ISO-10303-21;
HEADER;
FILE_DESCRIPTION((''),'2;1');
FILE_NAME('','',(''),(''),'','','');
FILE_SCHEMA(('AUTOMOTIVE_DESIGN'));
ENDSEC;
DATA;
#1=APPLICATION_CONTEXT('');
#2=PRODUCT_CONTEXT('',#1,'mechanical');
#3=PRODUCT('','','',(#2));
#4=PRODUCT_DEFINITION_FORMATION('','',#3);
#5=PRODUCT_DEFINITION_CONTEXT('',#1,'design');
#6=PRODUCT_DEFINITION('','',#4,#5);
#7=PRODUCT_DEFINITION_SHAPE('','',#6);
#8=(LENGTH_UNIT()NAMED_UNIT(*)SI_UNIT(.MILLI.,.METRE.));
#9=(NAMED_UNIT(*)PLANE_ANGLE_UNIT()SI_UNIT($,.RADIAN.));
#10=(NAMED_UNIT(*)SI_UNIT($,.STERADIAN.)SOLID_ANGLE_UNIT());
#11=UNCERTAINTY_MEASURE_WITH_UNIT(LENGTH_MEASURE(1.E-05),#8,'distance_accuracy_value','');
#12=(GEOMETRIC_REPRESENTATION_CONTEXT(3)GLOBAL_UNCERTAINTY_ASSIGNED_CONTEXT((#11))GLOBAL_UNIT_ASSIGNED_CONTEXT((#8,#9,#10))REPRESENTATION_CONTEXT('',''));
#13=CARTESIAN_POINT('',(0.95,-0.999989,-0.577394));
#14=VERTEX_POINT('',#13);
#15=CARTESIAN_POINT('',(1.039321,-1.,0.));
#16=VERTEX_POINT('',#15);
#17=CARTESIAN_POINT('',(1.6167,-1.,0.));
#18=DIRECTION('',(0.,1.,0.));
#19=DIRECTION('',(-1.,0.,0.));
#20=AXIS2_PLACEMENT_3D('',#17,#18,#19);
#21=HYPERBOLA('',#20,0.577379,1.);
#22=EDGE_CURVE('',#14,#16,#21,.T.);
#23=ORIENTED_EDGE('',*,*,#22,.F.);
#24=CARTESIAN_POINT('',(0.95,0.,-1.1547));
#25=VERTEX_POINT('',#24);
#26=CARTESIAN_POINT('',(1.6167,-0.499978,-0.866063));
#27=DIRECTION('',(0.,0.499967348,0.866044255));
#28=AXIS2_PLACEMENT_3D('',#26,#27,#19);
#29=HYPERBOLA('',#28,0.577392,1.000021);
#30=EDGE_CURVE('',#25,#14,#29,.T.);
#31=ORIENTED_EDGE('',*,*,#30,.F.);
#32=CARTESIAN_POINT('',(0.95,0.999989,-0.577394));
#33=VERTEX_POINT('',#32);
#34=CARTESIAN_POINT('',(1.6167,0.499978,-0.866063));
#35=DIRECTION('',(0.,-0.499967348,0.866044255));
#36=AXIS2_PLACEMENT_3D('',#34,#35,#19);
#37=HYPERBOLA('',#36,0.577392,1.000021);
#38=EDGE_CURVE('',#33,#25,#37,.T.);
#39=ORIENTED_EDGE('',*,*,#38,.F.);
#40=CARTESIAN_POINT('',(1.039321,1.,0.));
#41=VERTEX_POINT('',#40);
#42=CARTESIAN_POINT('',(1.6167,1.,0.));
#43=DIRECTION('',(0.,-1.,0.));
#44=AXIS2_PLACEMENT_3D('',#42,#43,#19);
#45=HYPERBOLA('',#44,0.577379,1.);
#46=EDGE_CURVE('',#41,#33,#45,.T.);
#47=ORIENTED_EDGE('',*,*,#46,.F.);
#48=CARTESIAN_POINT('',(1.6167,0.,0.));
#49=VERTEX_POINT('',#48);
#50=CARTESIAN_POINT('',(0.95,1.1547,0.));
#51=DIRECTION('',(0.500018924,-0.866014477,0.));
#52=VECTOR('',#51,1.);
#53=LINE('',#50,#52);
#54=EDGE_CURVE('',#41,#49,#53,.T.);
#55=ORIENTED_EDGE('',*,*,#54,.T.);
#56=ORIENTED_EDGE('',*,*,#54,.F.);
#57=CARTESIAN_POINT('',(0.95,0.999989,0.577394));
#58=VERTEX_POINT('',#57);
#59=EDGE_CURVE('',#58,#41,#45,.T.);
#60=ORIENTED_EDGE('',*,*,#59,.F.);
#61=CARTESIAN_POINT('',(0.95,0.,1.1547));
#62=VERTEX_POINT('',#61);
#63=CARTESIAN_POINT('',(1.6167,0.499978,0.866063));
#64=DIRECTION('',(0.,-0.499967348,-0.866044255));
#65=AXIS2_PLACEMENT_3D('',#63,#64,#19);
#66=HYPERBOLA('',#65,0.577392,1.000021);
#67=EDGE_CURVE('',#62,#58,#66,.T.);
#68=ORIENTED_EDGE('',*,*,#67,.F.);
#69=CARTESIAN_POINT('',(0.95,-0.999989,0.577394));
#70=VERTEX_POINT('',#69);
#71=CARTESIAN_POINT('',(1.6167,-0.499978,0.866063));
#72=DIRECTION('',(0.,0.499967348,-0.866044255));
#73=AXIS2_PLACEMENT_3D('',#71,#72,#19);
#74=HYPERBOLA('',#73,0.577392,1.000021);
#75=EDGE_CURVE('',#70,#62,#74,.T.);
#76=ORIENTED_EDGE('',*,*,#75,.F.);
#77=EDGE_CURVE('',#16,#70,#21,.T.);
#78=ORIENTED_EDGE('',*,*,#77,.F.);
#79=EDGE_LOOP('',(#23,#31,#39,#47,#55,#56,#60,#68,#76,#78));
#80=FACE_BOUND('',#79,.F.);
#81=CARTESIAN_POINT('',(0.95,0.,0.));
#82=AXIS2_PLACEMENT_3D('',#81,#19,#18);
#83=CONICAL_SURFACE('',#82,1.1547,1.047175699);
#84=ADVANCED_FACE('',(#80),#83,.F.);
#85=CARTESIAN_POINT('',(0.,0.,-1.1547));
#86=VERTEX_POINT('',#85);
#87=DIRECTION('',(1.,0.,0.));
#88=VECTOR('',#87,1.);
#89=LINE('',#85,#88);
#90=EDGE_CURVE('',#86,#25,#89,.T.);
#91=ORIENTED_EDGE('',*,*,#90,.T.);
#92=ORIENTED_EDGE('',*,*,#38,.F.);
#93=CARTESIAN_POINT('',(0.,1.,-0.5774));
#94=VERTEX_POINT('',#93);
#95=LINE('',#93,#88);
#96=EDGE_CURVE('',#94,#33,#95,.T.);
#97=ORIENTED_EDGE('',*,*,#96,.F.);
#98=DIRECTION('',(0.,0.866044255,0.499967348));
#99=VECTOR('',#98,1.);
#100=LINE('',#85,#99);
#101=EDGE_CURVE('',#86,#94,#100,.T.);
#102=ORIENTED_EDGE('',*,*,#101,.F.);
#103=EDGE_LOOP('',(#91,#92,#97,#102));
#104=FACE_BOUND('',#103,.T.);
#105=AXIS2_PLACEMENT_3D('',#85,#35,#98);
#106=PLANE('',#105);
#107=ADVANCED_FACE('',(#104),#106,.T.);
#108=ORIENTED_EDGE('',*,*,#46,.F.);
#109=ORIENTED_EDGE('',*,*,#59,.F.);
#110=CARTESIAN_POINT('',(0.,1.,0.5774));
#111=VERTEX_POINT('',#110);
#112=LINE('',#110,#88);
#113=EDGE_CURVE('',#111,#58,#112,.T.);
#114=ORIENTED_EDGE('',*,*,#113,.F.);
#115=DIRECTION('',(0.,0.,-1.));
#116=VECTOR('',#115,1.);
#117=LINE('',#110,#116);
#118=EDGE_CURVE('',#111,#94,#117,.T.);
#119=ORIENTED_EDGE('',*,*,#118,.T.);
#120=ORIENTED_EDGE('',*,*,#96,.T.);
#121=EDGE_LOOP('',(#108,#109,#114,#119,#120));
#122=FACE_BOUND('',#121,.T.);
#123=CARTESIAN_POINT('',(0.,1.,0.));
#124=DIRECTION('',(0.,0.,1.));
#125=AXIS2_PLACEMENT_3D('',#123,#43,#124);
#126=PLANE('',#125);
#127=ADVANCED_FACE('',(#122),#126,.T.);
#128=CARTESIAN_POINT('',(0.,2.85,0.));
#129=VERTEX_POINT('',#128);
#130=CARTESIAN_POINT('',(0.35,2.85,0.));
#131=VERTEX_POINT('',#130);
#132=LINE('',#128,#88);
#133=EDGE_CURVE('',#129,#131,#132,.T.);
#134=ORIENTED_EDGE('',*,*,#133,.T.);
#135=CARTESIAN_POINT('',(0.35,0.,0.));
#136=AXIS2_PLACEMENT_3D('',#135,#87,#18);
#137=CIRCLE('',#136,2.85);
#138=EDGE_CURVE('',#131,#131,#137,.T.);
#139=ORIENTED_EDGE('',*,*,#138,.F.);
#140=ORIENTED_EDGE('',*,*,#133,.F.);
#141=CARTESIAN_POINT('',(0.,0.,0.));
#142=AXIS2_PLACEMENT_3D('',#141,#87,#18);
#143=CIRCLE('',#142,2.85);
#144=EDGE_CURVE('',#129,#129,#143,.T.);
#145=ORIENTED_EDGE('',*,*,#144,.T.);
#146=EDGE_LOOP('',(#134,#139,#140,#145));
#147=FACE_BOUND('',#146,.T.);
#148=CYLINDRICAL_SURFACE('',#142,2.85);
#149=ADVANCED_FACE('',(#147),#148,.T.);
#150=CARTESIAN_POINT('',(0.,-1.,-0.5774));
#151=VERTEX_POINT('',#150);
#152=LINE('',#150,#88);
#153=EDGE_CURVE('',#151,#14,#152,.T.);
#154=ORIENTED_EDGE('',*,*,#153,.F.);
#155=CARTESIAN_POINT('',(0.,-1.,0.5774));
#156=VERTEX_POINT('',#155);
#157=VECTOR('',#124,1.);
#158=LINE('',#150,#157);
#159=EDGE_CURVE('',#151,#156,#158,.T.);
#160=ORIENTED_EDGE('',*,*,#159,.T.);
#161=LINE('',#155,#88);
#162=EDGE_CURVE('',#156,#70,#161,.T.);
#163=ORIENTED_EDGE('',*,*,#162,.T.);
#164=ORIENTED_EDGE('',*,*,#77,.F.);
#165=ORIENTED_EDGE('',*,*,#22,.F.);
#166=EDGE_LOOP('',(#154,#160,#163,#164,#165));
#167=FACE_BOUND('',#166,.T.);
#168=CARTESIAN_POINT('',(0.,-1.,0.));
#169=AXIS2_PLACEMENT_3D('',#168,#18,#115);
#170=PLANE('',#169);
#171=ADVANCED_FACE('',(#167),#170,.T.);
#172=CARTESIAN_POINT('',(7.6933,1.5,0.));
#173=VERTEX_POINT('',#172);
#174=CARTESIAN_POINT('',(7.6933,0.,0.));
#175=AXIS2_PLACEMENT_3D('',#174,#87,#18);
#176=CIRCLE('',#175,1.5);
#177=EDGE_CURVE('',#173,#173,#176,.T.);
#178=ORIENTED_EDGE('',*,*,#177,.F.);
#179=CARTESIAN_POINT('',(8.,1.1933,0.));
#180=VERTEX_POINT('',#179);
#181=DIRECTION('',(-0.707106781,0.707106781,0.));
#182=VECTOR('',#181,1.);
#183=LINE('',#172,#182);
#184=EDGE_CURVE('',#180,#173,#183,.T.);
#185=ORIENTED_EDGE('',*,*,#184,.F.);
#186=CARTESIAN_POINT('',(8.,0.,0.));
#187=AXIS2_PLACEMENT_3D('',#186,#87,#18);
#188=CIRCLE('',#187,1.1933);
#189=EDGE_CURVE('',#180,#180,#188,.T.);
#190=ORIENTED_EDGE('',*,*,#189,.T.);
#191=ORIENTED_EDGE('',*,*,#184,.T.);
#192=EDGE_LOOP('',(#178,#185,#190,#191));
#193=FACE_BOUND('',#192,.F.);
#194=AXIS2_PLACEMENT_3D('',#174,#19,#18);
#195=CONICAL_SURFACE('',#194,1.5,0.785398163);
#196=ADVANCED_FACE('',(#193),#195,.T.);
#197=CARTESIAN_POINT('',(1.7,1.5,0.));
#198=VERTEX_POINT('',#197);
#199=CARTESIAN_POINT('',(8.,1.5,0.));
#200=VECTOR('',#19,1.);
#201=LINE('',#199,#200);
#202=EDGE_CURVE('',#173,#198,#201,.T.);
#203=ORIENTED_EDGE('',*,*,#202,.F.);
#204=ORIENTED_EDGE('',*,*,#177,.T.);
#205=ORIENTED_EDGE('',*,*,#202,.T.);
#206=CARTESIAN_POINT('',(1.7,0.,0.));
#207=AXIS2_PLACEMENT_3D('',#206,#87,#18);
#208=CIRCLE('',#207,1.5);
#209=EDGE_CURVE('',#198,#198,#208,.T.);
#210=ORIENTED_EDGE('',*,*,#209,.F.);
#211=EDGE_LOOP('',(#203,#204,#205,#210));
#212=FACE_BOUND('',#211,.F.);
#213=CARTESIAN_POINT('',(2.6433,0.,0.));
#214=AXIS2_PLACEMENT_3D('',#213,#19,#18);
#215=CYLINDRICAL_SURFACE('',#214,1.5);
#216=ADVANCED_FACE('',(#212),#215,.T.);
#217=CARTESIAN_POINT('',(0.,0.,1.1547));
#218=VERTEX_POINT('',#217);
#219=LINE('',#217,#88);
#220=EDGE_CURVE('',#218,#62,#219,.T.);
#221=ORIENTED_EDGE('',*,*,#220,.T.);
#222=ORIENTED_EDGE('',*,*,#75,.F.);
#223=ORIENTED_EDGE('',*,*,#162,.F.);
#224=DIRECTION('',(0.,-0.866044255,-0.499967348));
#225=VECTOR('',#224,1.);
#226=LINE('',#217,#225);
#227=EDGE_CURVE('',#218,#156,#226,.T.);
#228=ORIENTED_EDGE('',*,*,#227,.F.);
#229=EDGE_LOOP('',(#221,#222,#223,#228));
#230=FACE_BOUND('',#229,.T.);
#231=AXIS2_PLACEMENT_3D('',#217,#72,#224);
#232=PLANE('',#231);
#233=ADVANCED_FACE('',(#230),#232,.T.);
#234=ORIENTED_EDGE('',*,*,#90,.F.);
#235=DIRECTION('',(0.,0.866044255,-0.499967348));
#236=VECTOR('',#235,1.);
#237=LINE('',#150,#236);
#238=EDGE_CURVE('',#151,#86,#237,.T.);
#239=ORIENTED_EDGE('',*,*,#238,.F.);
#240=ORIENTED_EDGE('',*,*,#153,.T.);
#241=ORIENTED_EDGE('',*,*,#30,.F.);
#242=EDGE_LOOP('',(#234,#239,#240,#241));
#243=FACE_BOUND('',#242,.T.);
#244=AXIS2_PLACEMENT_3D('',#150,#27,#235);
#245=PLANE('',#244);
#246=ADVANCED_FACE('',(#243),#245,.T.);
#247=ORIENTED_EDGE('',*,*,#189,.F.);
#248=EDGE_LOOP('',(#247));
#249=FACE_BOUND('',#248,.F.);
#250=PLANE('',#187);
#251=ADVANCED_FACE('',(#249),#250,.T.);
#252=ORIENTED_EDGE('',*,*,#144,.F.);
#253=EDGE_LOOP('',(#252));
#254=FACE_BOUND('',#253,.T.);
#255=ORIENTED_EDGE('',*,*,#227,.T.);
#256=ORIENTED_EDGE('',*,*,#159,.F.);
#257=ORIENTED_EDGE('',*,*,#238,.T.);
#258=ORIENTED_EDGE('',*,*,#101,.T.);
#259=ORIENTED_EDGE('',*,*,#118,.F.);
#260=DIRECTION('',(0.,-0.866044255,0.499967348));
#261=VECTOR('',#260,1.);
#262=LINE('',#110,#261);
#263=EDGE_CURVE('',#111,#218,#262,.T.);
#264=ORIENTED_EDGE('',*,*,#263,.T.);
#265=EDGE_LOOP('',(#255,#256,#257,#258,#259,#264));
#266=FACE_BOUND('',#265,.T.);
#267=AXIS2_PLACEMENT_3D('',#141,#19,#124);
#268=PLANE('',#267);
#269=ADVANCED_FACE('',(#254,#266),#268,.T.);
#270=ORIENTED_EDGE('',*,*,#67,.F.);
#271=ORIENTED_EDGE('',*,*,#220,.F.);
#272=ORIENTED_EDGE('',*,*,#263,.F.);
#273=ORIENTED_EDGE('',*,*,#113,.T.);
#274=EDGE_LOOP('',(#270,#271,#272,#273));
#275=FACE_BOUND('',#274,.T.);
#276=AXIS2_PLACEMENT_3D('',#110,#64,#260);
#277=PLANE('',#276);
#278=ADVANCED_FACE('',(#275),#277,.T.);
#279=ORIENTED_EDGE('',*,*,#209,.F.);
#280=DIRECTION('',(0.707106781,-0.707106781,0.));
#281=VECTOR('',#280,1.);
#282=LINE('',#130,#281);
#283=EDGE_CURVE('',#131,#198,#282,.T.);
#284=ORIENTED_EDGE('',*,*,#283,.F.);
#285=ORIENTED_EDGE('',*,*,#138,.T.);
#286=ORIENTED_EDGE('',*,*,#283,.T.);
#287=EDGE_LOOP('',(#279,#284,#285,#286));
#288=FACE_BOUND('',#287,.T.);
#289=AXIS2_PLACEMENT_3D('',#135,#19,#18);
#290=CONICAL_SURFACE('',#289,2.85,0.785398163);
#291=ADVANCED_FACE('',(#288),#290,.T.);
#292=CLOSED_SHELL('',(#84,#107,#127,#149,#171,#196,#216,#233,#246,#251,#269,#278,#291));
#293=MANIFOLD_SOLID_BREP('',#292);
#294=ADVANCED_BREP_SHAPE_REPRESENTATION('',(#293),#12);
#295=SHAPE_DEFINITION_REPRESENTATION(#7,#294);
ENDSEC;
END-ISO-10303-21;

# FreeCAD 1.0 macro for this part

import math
import FreeCAD as App
import Part
import Sketcher
Q = App.Units.Quantity


def edges_at(feature, points):
    """Names of the edges that pass closest to the given points."""
    edges = feature.Shape.Edges
    near = lambda p: min(range(len(edges)), key=lambda i: edges[i].distToShape(Part.Vertex(*p))[0])
    return sorted({f"Edge{near(p) + 1}" for p in points})

doc = App.newDocument("Part")
params = doc.addObject("Spreadsheet::Sheet", "Params")
for row, (alias, value) in enumerate([
    ("sketch1_width", "0.95 mm"),
    ("sketch1_height", "1.5 mm"),
    ("sketch1_width2", "0.35 mm"),
    ("revolution_angle", "360 deg"),
    ("chamfer_size", "0.3067 mm"),
    ("chamfer_size2", "0.3067 mm"),
], start=1):
    params.set(f"A{row}", alias)
    params.set(f"B{row}", "=" + value)
    params.setAlias(f"B{row}", alias)

body = doc.addObject("PartDesign::Body", "Body")

# Sketch on XY plane
sketch1 = body.newObject("Sketcher::SketchObject", "Sketch")
sketch1.AttachmentSupport = (doc.getObject("XY_Plane"), [""])
sketch1.MapMode = "FlatFace"
sketch1.addGeometry([
    Part.LineSegment(App.Vector(1.6167, 0, 0), App.Vector(8, 0, 0)),  # 0
    Part.LineSegment(App.Vector(8, 0, 0), App.Vector(8, 1.5, 0)),  # 1
    Part.LineSegment(App.Vector(8, 1.5, 0), App.Vector(1.7, 1.5, 0)),  # 2
    Part.LineSegment(App.Vector(1.7, 1.5, 0), App.Vector(0.35, 2.85, 0)),  # 3
    Part.LineSegment(App.Vector(0.35, 2.85, 0), App.Vector(0, 2.85, 0)),  # 4
    Part.LineSegment(App.Vector(0, 2.85, 0), App.Vector(0, 1.1547, 0)),  # 5
    Part.LineSegment(App.Vector(0, 1.1547, 0), App.Vector(0.95, 1.1547, 0)),  # 6
    Part.LineSegment(App.Vector(0.95, 1.1547, 0), App.Vector(1.6167, 0, 0)),  # 7
], False)
sketch1.addConstraint([
    Sketcher.Constraint("Coincident", 0, 2, 1, 1),
    Sketcher.Constraint("Coincident", 1, 2, 2, 1),
    Sketcher.Constraint("Coincident", 2, 2, 3, 1),
    Sketcher.Constraint("Coincident", 3, 2, 4, 1),
    Sketcher.Constraint("Coincident", 4, 2, 5, 1),
    Sketcher.Constraint("Coincident", 5, 2, 6, 1),
    Sketcher.Constraint("Coincident", 6, 2, 7, 1),
    Sketcher.Constraint("Coincident", 7, 2, 0, 1),
    Sketcher.Constraint("Horizontal", 0),
    Sketcher.Constraint("Vertical", 1),
    Sketcher.Constraint("Horizontal", 2),
    Sketcher.Constraint("Horizontal", 4),
    Sketcher.Constraint("Vertical", 5),
    Sketcher.Constraint("Horizontal", 6),
    Sketcher.Constraint("PointOnObject", 0, 2, -1),
    Sketcher.Constraint("PointOnObject", 4, 2, -2),
    Sketcher.Constraint("DistanceX", -1, 1, 0, 2, Q("8 mm")),
    Sketcher.Constraint("DistanceX", 6, 1, 6, 2, Q("0.95 mm")),
    Sketcher.Constraint("DistanceX", -1, 1, 2, 2, Q("1.7 mm")),
    Sketcher.Constraint("Angle", 3, Q("135 deg")),
    Sketcher.Constraint("DistanceY", 1, 1, 1, 2, Q("1.5 mm")),
    Sketcher.Constraint("DistanceX", 4, 2, 4, 1, Q("0.35 mm")),
    Sketcher.Constraint("DistanceX", 0, 1, 0, 2, Q("6.3833 mm")),
    Sketcher.Constraint("DistanceY", 5, 2, 5, 1, Q("1.6953 mm")),
])
sketch1.setExpression("Constraints[17]", "Params.sketch1_width")
sketch1.setExpression("Constraints[20]", "Params.sketch1_height")
sketch1.setExpression("Constraints[21]", "Params.sketch1_width2")
revolution = body.newObject("PartDesign::Revolution", "Revolution")
revolution.Profile = sketch1
revolution.ReferenceAxis = (sketch1, ["H_Axis"])
revolution.setExpression("Angle", "Params.revolution_angle")

# Sketch on YZ plane
sketch2 = body.newObject("Sketcher::SketchObject", "Sketch001")
sketch2.AttachmentSupport = (doc.getObject("YZ_Plane"), [""])
sketch2.MapMode = "FlatFace"
sketch2.addGeometry([
    Part.LineSegment(App.Vector(1, 0.5774, 0), App.Vector(0, 1.1547, 0)),  # 0
    Part.ArcOfCircle(Part.Circle(App.Vector(0, 0, 0), App.Vector(0, 0, 1), 1.1547), math.radians(30.002137), math.radians(90)),  # 1
    Part.ArcOfCircle(Part.Circle(App.Vector(0, 0, 0), App.Vector(0, 0, 1), 1.1547), math.radians(90), math.radians(149.997863)),  # 2
    Part.LineSegment(App.Vector(0, 1.1547, 0), App.Vector(-1, 0.5774, 0)),  # 3
    Part.ArcOfCircle(Part.Circle(App.Vector(0, 0, 0), App.Vector(0, 0, 1), 1.1547), math.radians(-30.002137), math.radians(30.002137)),  # 4
    Part.LineSegment(App.Vector(1, 0.5774, 0), App.Vector(1, -0.5774, 0)),  # 5
    Part.LineSegment(App.Vector(-1, 0.5774, 0), App.Vector(-1, -0.5774, 0)),  # 6
    Part.ArcOfCircle(Part.Circle(App.Vector(0, 0, 0), App.Vector(0, 0, 1), 1.1547), math.radians(149.997863), math.radians(210.002137)),  # 7
    Part.LineSegment(App.Vector(-1, -0.5774, 0), App.Vector(0, -1.1547, 0)),  # 8
    Part.ArcOfCircle(Part.Circle(App.Vector(0, 0, 0), App.Vector(0, 0, 1), 1.1547), math.radians(-149.997863), math.radians(-90)),  # 9
    Part.ArcOfCircle(Part.Circle(App.Vector(0, 0, 0), App.Vector(0, 0, 1), 1.1547), math.radians(-90), math.radians(-30.002137)),  # 10
    Part.LineSegment(App.Vector(0, -1.1547, 0), App.Vector(1, -0.5774, 0)),  # 11
], False)
sketch2.addConstraint([
    Sketcher.Constraint("Coincident", 0, 1, 1, 1),
    Sketcher.Constraint("Coincident", 1, 2, 0, 2),
    Sketcher.Constraint("Coincident", 2, 1, 3, 1),
    Sketcher.Constraint("Coincident", 3, 2, 2, 2),
    Sketcher.Constraint("Coincident", 4, 1, 5, 2),
    Sketcher.Constraint("Coincident", 5, 1, 4, 2),
    Sketcher.Constraint("Coincident", 6, 1, 7, 1),
    Sketcher.Constraint("Coincident", 7, 2, 6, 2),
    Sketcher.Constraint("Coincident", 8, 1, 9, 1),
    Sketcher.Constraint("Coincident", 9, 2, 8, 2),
    Sketcher.Constraint("Coincident", 10, 1, 11, 1),
    Sketcher.Constraint("Coincident", 11, 2, 10, 2),
    Sketcher.Constraint("Vertical", 5),
    Sketcher.Constraint("Vertical", 6),
    Sketcher.Constraint("Coincident", 1, 3, -1, 1),
    Sketcher.Constraint("Coincident", 2, 3, -1, 1),
    Sketcher.Constraint("Coincident", 4, 3, -1, 1),
    Sketcher.Constraint("Coincident", 7, 3, -1, 1),
    Sketcher.Constraint("Coincident", 9, 3, -1, 1),
    Sketcher.Constraint("Coincident", 10, 3, -1, 1),
    Sketcher.Constraint("Coincident", 2, 1, 1, 2),
    Sketcher.Constraint("Coincident", 5, 1, 0, 1),
    Sketcher.Constraint("Coincident", 6, 1, 3, 2),
    Sketcher.Constraint("Coincident", 8, 1, 7, 2),
    Sketcher.Constraint("Coincident", 10, 1, 9, 2),
    Sketcher.Constraint("PointOnObject", 1, 2, -2),
    Sketcher.Constraint("PointOnObject", 9, 2, -2),
    Sketcher.Constraint("Parallel", 0, 8),
    Sketcher.Constraint("Parallel", 3, 11),
    Sketcher.Constraint("DistanceX", -1, 1, 0, 1, Q("1 mm")),
    Sketcher.Constraint("Radius", 1, Q("1.1547 mm")),
])
pad1 = body.newObject("PartDesign::Pad", "Pad")
pad1.Profile = sketch2
pad1.Type = "UpToFirst"
doc.recompute()

chamfer = body.newObject("PartDesign::Chamfer", "Chamfer")
chamfer.Base = (pad1, edges_at(pad1, [(8, -1.5, 0)]))
chamfer.ChamferType = "Two distances"
chamfer.setExpression("Size", "Params.chamfer_size")
chamfer.setExpression("Size2", "Params.chamfer_size2")

doc.recompute()
